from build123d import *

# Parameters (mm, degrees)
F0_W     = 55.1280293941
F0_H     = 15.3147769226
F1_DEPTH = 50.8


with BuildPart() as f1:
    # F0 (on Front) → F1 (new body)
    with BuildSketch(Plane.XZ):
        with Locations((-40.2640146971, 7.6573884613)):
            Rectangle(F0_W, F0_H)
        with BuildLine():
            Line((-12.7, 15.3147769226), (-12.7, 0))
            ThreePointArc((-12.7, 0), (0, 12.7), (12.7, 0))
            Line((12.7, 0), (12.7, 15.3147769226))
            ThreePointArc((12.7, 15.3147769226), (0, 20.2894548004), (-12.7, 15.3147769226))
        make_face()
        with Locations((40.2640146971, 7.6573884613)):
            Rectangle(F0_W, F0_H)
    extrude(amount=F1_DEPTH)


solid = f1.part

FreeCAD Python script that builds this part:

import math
import FreeCAD as App
import Part
import Sketcher
from FreeCAD import Vector
Q = App.Units.Quantity

doc = App.newDocument("Part")
params = doc.addObject("Spreadsheet::Sheet", "Params")
for row, (alias, value) in enumerate([
    ("sketch1_radius", "0.5 in"),
    ("pad1_length", "2 in"),
], start=1):
    params.set(f"A{row}", alias)
    params.set(f"B{row}", "=" + value)
    params.setAlias(f"B{row}", alias)

body = doc.addObject("PartDesign::Body", "Body")

# Sketch on XZ plane
sketch1 = doc.addObject("Sketcher::SketchObject", "Sketch")
body.addObject(sketch1)
sketch1.AttachmentSupport = (doc.XZ_Plane, [""])
sketch1.MapMode = "FlatFace"
sketch1.addGeometry([
    Part.LineSegment(Vector(-68, 15, 0), Vector(-68, 0, 0)),  # 0
    Part.LineSegment(Vector(-68, 0, 0), Vector(-13, 0, 0)),  # 1
    Part.ArcOfCircle(Part.Circle(Vector(0, 0, 0), Vector(0, 0, 1), 13), math.radians(0), math.radians(180)),  # 2
    Part.LineSegment(Vector(13, 0, 0), Vector(68, 0, 0)),  # 3
    Part.LineSegment(Vector(68, 0, 0), Vector(68, 15, 0)),  # 4
    Part.LineSegment(Vector(68, 15, 0), Vector(13, 15, 0)),  # 5
    Part.ArcOfCircle(Part.Circle(Vector(0, 2, 0), Vector(0, 0, 1), 19), math.radians(47), math.radians(133)),  # 6
    Part.LineSegment(Vector(-13, 15, 0), Vector(-68, 15, 0)),  # 7
], False)
sketch1.addConstraint([
    Sketcher.Constraint("Coincident", 0, 2, 1, 1),
    Sketcher.Constraint("Coincident", 1, 2, 2, 2),
    Sketcher.Constraint("Coincident", 2, 1, 3, 1),
    Sketcher.Constraint("Coincident", 3, 2, 4, 1),
    Sketcher.Constraint("Coincident", 4, 2, 5, 1),
    Sketcher.Constraint("Coincident", 5, 2, 6, 1),
    Sketcher.Constraint("Coincident", 6, 2, 7, 1),
    Sketcher.Constraint("Coincident", 7, 2, 0, 1),
    Sketcher.Constraint("Vertical", 0),
    Sketcher.Constraint("Horizontal", 1),
    Sketcher.Constraint("Horizontal", 3),
    Sketcher.Constraint("Vertical", 4),
    Sketcher.Constraint("Horizontal", 5),
    Sketcher.Constraint("Horizontal", 7),
    Sketcher.Constraint("Coincident", 2, 3, -1, 1),
    Sketcher.Constraint("Symmetric", 0, 2, 3, 2, -1, 1),
    Sketcher.Constraint("Symmetric", 5, 2, 6, 2, -2),
    Sketcher.Constraint("PointOnObject", 0, 2, -1),
    Sketcher.Constraint("Vertical", 2, 1, 5, 2),
    Sketcher.Constraint("Radius", 2, Q("0.5 in")),
    Sketcher.Constraint("Radius", 6, Q("18.698439 mm")),
    Sketcher.Constraint("DistanceX", 1, 1, 1, 2, Q("55.128029 mm")),
    Sketcher.Constraint("DistanceY", 0, 2, 0, 1, Q("15.314777 mm")),
])
sketch1.setExpression("Constraints[19]", "Params.sketch1_radius")
pad1 = doc.addObject("PartDesign::Pad", "Pad")
body.addObject(pad1)
pad1.Profile = sketch1
pad1.setExpression("Length", "Params.pad1_length")

doc.recompute()
